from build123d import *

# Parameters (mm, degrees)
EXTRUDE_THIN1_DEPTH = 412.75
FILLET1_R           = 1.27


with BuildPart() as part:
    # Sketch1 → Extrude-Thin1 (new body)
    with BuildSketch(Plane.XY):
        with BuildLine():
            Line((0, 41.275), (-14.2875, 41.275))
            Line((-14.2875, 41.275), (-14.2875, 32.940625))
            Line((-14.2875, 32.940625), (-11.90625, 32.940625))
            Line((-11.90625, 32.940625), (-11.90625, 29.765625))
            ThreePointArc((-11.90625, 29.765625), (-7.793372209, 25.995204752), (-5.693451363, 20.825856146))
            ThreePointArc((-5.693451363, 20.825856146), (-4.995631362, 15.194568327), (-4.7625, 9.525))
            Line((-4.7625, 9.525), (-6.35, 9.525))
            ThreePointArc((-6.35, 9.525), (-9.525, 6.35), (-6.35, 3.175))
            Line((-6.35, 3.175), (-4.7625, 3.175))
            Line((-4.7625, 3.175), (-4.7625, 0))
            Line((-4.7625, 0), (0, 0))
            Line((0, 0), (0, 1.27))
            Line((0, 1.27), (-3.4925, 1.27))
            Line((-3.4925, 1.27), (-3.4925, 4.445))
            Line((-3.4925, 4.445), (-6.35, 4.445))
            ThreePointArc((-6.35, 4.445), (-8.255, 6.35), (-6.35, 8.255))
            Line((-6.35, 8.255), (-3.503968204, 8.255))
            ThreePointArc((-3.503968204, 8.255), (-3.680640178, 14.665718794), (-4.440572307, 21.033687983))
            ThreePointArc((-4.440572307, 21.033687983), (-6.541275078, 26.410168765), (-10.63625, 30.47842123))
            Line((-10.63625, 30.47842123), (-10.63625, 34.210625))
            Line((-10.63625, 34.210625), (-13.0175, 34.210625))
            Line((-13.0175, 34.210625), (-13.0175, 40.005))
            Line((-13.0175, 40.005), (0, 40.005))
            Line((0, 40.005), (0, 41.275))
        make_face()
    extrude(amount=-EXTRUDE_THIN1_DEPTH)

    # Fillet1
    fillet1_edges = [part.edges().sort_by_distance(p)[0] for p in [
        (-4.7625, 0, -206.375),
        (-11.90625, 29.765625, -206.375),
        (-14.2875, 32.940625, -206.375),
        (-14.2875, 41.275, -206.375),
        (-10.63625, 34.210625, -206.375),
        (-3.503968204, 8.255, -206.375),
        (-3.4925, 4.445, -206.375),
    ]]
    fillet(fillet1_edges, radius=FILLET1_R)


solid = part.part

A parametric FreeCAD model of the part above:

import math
import FreeCAD as App
import Part
import Sketcher

V = App.Vector
Q = App.Units.Quantity


def edges_at(feature, points):
    """Names of the edges that pass closest to the given points."""
    edges = feature.Shape.Edges
    near = lambda p: min(range(len(edges)), key=lambda i: edges[i].distToShape(Part.Vertex(*p))[0])
    return sorted({f"Edge{near(p) + 1}" for p in points})

doc = App.newDocument("Part")
body = doc.addObject("PartDesign::Body", "Body")

# Sketch on XY plane
sketch1 = doc.addObject("Sketcher::SketchObject", "Sketch")
body.addObject(sketch1)
sketch1.AttachmentSupport = (doc.XY_Plane, [""])
sketch1.MapMode = "FlatFace"
sketch1.addGeometry(Part.LineSegment(V(0, 41.3, 0), V(-14.3, 41.3, 0)), False)
sketch1.addGeometry(Part.LineSegment(V(-14.3, 41.3, 0), V(-14.3, 32.9, 0)), False)
sketch1.addGeometry(Part.LineSegment(V(-14.3, 32.9, 0), V(-11.9, 32.9, 0)), False)
sketch1.addGeometry(Part.LineSegment(V(-11.9, 32.9, 0), V(-11.9, 29.8, 0)), False)
sketch1.addGeometry(Part.ArcOfCircle(Part.Circle(V(-18.2, 18.7, 0), V(0, 0, 1), 12.7), math.radians(9), math.radians(60)), False)
sketch1.addGeometry(Part.ArcOfCircle(Part.Circle(V(-73.8, 9.5, 0), V(0, 0, 1), 69.1), math.radians(0), math.radians(9.42)), False)
sketch1.addGeometry(Part.LineSegment(V(-4.8, 9.5, 0), V(-6.3, 9.5, 0)), False)
sketch1.addGeometry(Part.ArcOfCircle(Part.Circle(V(-6.3, 6.3, 0), V(0, 0, 1), 3.2), math.radians(90), math.radians(270)), False)
sketch1.addGeometry(Part.LineSegment(V(-6.3, 3.2, 0), V(-4.8, 3.2, 0)), False)
sketch1.addGeometry(Part.LineSegment(V(-4.8, 3.2, 0), V(-4.8, 0, 0)), False)
sketch1.addGeometry(Part.LineSegment(V(-4.8, 0, 0), V(0, 0, 0)), False)
sketch1.addGeometry(Part.LineSegment(V(0, 0, 0), V(0, 1.3, 0)), False)
sketch1.addGeometry(Part.LineSegment(V(0, 1.3, 0), V(-3.5, 1.3, 0)), False)
sketch1.addGeometry(Part.LineSegment(V(-3.5, 1.3, 0), V(-3.5, 4.4, 0)), False)
sketch1.addGeometry(Part.LineSegment(V(-3.5, 4.4, 0), V(-6.3, 4.4, 0)), False)
sketch1.addGeometry(Part.ArcOfCircle(Part.Circle(V(-6.3, 6.3, 0), V(0, 0, 1), 1.9), math.radians(90), math.radians(270)), False)
sketch1.addGeometry(Part.LineSegment(V(-6.3, 8.3, 0), V(-3.5, 8.3, 0)), False)
sketch1.addGeometry(Part.ArcOfCircle(Part.Circle(V(-73.8, 9.5, 0), V(0, 0, 1), 70.3), math.radians(-1.03), math.radians(9.42)), False)
sketch1.addGeometry(Part.ArcOfCircle(Part.Circle(V(-18.2, 18.7, 0), V(0, 0, 1), 14), math.radians(9), math.radians(57)), False)
sketch1.addGeometry(Part.LineSegment(V(-10.6, 30.5, 0), V(-10.6, 34.2, 0)), False)
sketch1.addGeometry(Part.LineSegment(V(-10.6, 34.2, 0), V(-13, 34.2, 0)), False)
sketch1.addGeometry(Part.LineSegment(V(-13, 34.2, 0), V(-13, 40, 0)), False)
sketch1.addGeometry(Part.LineSegment(V(-13, 40, 0), V(0, 40, 0)), False)
sketch1.addGeometry(Part.LineSegment(V(0, 40, 0), V(0, 41.3, 0)), False)
sketch1.addConstraint(Sketcher.Constraint("Coincident", 0, 2, 1, 1))
sketch1.addConstraint(Sketcher.Constraint("Coincident", 1, 2, 2, 1))
sketch1.addConstraint(Sketcher.Constraint("Coincident", 2, 2, 3, 1))
sketch1.addConstraint(Sketcher.Constraint("Coincident", 3, 2, 4, 2))
sketch1.addConstraint(Sketcher.Constraint("Tangent", 4, 1, 5, 2))
sketch1.addConstraint(Sketcher.Constraint("Coincident", 5, 1, 6, 1))
sketch1.addConstraint(Sketcher.Constraint("Tangent", 6, 2, 7, 1))
sketch1.addConstraint(Sketcher.Constraint("Tangent", 7, 2, 8, 1))
sketch1.addConstraint(Sketcher.Constraint("Coincident", 8, 2, 9, 1))
sketch1.addConstraint(Sketcher.Constraint("Coincident", 9, 2, 10, 1))
sketch1.addConstraint(Sketcher.Constraint("Coincident", 10, 2, 11, 1))
sketch1.addConstraint(Sketcher.Constraint("Coincident", 11, 2, 12, 1))
sketch1.addConstraint(Sketcher.Constraint("Coincident", 12, 2, 13, 1))
sketch1.addConstraint(Sketcher.Constraint("Coincident", 13, 2, 14, 1))
sketch1.addConstraint(Sketcher.Constraint("Tangent", 14, 2, 15, 2))
sketch1.addConstraint(Sketcher.Constraint("Tangent", 15, 1, 16, 1))
sketch1.addConstraint(Sketcher.Constraint("Coincident", 16, 2, 17, 1))
sketch1.addConstraint(Sketcher.Constraint("Tangent", 17, 2, 18, 1))
sketch1.addConstraint(Sketcher.Constraint("Coincident", 18, 2, 19, 1))
sketch1.addConstraint(Sketcher.Constraint("Coincident", 19, 2, 20, 1))
sketch1.addConstraint(Sketcher.Constraint("Coincident", 20, 2, 21, 1))
sketch1.addConstraint(Sketcher.Constraint("Coincident", 21, 2, 22, 1))
sketch1.addConstraint(Sketcher.Constraint("Coincident", 22, 2, 23, 1))
sketch1.addConstraint(Sketcher.Constraint("Coincident", 23, 2, 0, 1))
sketch1.addConstraint(Sketcher.Constraint("Horizontal", 0))
sketch1.addConstraint(Sketcher.Constraint("Vertical", 1))
sketch1.addConstraint(Sketcher.Constraint("Horizontal", 2))
sketch1.addConstraint(Sketcher.Constraint("Vertical", 3))
sketch1.addConstraint(Sketcher.Constraint("Horizontal", 6))
sketch1.addConstraint(Sketcher.Constraint("Horizontal", 8))
sketch1.addConstraint(Sketcher.Constraint("Vertical", 9))
sketch1.addConstraint(Sketcher.Constraint("Horizontal", 10))
sketch1.addConstraint(Sketcher.Constraint("Vertical", 11))
sketch1.addConstraint(Sketcher.Constraint("Horizontal", 12))
sketch1.addConstraint(Sketcher.Constraint("Vertical", 13))
sketch1.addConstraint(Sketcher.Constraint("Horizontal", 14))
sketch1.addConstraint(Sketcher.Constraint("Horizontal", 16))
sketch1.addConstraint(Sketcher.Constraint("Vertical", 19))
sketch1.addConstraint(Sketcher.Constraint("Horizontal", 20))
sketch1.addConstraint(Sketcher.Constraint("Vertical", 21))
sketch1.addConstraint(Sketcher.Constraint("Horizontal", 22))
sketch1.addConstraint(Sketcher.Constraint("Vertical", 23))
sketch1.addConstraint(Sketcher.Constraint("Coincident", 10, 2, -1, 1))
sketch1.addConstraint(Sketcher.Constraint("Coincident", 15, 3, 7, 3))
sketch1.addConstraint(Sketcher.Constraint("Coincident", 17, 3, 5, 3))
sketch1.addConstraint(Sketcher.Constraint("Coincident", 18, 3, 4, 3))
sketch1.addConstraint(Sketcher.Constraint("PointOnObject", 22, 2, -2))
sketch1.addConstraint(Sketcher.Constraint("Horizontal", 17, 3, 5, 1))
sketch1.addConstraint(Sketcher.Constraint("Vertical", 5, 1, 8, 2))
sketch1.addConstraint(Sketcher.Constraint("Equal", 2, 20))
sketch1.addConstraint(Sketcher.Constraint("Equal", 3, 9))
sketch1.addConstraint(Sketcher.Constraint("Equal", 9, 13))
sketch1.addConstraint(Sketcher.Constraint("Equal", 11, 23))
sketch1.addConstraint(Sketcher.Constraint("Radius", 4, Q("0.5 in")))
sketch1.addConstraint(Sketcher.Constraint("Radius", 18, Q("0.55 in")))
sketch1.addConstraint(Sketcher.Constraint("Radius", 5, Q("2.71875 in")))
sketch1.addConstraint(Sketcher.Constraint("Radius", 7, Q("0.125 in")))
sketch1.addConstraint(Sketcher.Constraint("Radius", 15, Q("0.075 in")))
sketch1.addConstraint(Sketcher.Constraint("DistanceY", 11, 2, 7, 3, Q("0.2 in")))
sketch1.addConstraint(Sketcher.Constraint("DistanceX", 0, 2, 0, 1, Q("0.5625 in")))
sketch1.addConstraint(Sketcher.Constraint("DistanceX", 2, 1, 2, 2, Q("0.09375 in")))
sketch1.addConstraint(Sketcher.Constraint("DistanceX", 6, 2, 6, 1, Q("0.0625 in")))
sketch1.addConstraint(Sketcher.Constraint("DistanceX", 10, 1, 10, 2, Q("0.1875 in")))
sketch1.addConstraint(Sketcher.Constraint("DistanceY", 1, 2, 1, 1, Q("0.328125 in")))
sketch1.addConstraint(Sketcher.Constraint("DistanceY", 17, 3, 0, 2, Q("1.25 in")))
sketch1.addConstraint(Sketcher.Constraint("DistanceX", 9, 2, 12, 2, Q("0.05 in")))
sketch1.addConstraint(Sketcher.Constraint("DistanceX", 3, 2, 18, 2, Q("0.05 in")))
sketch1.addConstraint(Sketcher.Constraint("DistanceY", 2, 2, 19, 2, Q("0.05 in")))
pad1 = doc.addObject("PartDesign::Pad", "Pad")
body.addObject(pad1)
pad1.Profile = sketch1
pad1.Length = Q("16.25 in")
pad1.Reversed = True
doc.recompute()

fillet = doc.addObject("PartDesign::Fillet", "Fillet")
body.addObject(fillet)
fillet.Base = (pad1, edges_at(pad1, [
    (-4.763, 0, -206.375),
    (-11.906, 29.766, -206.375),
    (-14.287, 32.941, -206.375),
    (-14.287, 41.275, -206.375),
    (-10.636, 34.211, -206.375),
    (-3.504, 8.255, -206.375),
    (-3.493, 4.445, -206.375),
]))
fillet.Radius = Q("0.05 in")

doc.recompute()
